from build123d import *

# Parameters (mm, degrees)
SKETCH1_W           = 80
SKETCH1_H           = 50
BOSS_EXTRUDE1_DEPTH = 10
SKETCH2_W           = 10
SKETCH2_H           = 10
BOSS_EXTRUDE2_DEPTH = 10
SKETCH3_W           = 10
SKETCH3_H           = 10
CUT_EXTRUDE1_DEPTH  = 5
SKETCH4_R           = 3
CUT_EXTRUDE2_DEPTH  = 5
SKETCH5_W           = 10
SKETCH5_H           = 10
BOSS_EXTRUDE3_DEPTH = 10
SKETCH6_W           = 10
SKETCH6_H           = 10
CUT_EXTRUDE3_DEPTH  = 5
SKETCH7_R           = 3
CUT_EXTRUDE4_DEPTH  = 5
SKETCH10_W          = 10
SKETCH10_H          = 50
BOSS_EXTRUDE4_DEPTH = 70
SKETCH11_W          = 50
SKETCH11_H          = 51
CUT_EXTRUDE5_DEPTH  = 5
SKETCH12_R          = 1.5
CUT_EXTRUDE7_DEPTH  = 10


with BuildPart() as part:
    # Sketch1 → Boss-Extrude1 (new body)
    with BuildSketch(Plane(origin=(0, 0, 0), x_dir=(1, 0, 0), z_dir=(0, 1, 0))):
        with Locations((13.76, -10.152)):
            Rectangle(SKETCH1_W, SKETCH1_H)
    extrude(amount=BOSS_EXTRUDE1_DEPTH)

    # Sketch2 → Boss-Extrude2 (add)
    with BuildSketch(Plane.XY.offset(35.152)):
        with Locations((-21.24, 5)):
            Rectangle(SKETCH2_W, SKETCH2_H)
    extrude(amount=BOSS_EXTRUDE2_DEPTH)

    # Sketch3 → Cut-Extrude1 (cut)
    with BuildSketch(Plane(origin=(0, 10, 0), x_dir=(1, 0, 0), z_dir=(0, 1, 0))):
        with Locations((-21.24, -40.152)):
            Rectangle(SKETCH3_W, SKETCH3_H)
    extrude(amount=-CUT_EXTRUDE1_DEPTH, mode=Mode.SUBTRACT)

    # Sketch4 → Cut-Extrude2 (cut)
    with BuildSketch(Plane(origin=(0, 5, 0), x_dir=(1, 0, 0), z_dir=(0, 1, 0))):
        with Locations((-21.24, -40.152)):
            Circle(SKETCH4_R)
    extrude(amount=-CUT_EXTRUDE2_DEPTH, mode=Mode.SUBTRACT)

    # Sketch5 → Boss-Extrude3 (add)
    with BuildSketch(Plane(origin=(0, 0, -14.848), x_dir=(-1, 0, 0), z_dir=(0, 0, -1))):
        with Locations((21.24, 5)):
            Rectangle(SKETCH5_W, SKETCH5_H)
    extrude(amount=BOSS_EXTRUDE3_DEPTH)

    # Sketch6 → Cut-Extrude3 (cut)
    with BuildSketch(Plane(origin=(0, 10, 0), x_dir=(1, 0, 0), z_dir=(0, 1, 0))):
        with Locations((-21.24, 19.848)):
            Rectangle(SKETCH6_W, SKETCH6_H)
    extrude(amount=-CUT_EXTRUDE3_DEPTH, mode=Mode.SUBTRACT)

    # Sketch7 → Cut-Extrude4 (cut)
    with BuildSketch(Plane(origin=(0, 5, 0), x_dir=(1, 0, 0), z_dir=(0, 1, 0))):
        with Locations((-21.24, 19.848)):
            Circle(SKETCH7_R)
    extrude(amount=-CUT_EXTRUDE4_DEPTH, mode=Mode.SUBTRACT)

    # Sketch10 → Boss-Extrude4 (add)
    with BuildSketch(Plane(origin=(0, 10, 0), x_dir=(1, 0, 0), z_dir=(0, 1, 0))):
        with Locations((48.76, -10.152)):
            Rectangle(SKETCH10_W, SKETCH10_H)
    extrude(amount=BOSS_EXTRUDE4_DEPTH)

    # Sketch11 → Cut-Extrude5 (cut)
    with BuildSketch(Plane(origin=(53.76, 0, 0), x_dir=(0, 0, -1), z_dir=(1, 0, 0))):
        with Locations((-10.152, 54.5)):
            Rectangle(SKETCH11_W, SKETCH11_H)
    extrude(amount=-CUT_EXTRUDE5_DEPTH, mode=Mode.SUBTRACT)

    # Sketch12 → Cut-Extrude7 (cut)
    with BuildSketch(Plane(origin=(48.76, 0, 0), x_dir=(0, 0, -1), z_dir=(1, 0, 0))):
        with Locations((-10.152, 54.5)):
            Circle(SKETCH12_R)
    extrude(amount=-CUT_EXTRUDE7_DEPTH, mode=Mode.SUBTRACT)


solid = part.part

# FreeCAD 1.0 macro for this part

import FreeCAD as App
import Part
import Sketcher

V = App.Vector

doc = App.newDocument("Part")
body = doc.addObject("PartDesign::Body", "Body")

# Sketch on XZ plane
sketch1 = body.newObject("Sketcher::SketchObject", "Sketch")
sketch1.AttachmentSupport = (doc.getObject("XZ_Plane"), [""])
sketch1.MapMode = "FlatFace"
sketch1.addGeometry(Part.LineSegment(V(-26, -15, 0), V(-26, 35, 0)), False)
sketch1.addGeometry(Part.LineSegment(V(-26, 35, 0), V(54, 35, 0)), False)
sketch1.addGeometry(Part.LineSegment(V(54, 35, 0), V(54, -15, 0)), False)
sketch1.addGeometry(Part.LineSegment(V(54, -15, 0), V(-26, -15, 0)), False)
sketch1.addConstraint(Sketcher.Constraint("Coincident", 0, 2, 1, 1))
sketch1.addConstraint(Sketcher.Constraint("Coincident", 1, 2, 2, 1))
sketch1.addConstraint(Sketcher.Constraint("Coincident", 2, 2, 3, 1))
sketch1.addConstraint(Sketcher.Constraint("Coincident", 3, 2, 0, 1))
sketch1.addConstraint(Sketcher.Constraint("Vertical", 0))
sketch1.addConstraint(Sketcher.Constraint("Horizontal", 1))
sketch1.addConstraint(Sketcher.Constraint("Vertical", 2))
sketch1.addConstraint(Sketcher.Constraint("Horizontal", 3))
sketch1.addConstraint(Sketcher.Constraint("DistanceX", 1, 1, 1, 2, 80.0))
sketch1.addConstraint(Sketcher.Constraint("DistanceY", 0, 1, 0, 2, 50.0))
sketch1.addConstraint(Sketcher.Constraint("DistanceX", 0, 2, -1, 1, 26.24))
sketch1.addConstraint(Sketcher.Constraint("DistanceY", -1, 1, 0, 2, 35.152))
pad1 = body.newObject("PartDesign::Pad", "Pad")
pad1.Profile = sketch1
pad1.Length = 10
pad1.Reversed = True

# Sketch on XY plane
sketch2 = body.newObject("Sketcher::SketchObject", "Sketch001")
sketch2.AttachmentSupport = (doc.getObject("XY_Plane"), [""])
sketch2.MapMode = "FlatFace"
sketch2.AttachmentOffset = App.Placement(V(0, 0, 35.152), App.Rotation())
sketch2.addGeometry(Part.LineSegment(V(-26, 10, 0), V(-26, 0, 0)), False)
sketch2.addGeometry(Part.LineSegment(V(-26, 0, 0), V(-16, 0, 0)), False)
sketch2.addGeometry(Part.LineSegment(V(-16, 0, 0), V(-16, 10, 0)), False)
sketch2.addGeometry(Part.LineSegment(V(-16, 10, 0), V(-26, 10, 0)), False)
sketch2.addConstraint(Sketcher.Constraint("Coincident", 0, 2, 1, 1))
sketch2.addConstraint(Sketcher.Constraint("Coincident", 1, 2, 2, 1))
sketch2.addConstraint(Sketcher.Constraint("Coincident", 2, 2, 3, 1))
sketch2.addConstraint(Sketcher.Constraint("Coincident", 3, 2, 0, 1))
sketch2.addConstraint(Sketcher.Constraint("Vertical", 0))
sketch2.addConstraint(Sketcher.Constraint("Horizontal", 1))
sketch2.addConstraint(Sketcher.Constraint("Vertical", 2))
sketch2.addConstraint(Sketcher.Constraint("Horizontal", 3))
sketch2.addConstraint(Sketcher.Constraint("PointOnObject", 0, 2, -1))
sketch2.addConstraint(Sketcher.Constraint("Equal", 3, 0))
sketch2.addConstraint(Sketcher.Constraint("DistanceX", 1, 1, 1, 2, 10.0))
sketch2.addConstraint(Sketcher.Constraint("DistanceX", 0, 2, -1, 1, 26.24))
pad2 = body.newObject("PartDesign::Pad", "Pad001")
pad2.Profile = sketch2
pad2.Length = 10

# Sketch on XZ plane
sketch3 = body.newObject("Sketcher::SketchObject", "Sketch002")
sketch3.AttachmentSupport = (doc.getObject("XZ_Plane"), [""])
sketch3.MapMode = "FlatFace"
sketch3.AttachmentOffset = App.Placement(V(0, 0, -10), App.Rotation())
sketch3.addGeometry(Part.LineSegment(V(-26, 35, 0), V(-26, 45, 0)), False)
sketch3.addGeometry(Part.LineSegment(V(-26, 45, 0), V(-16, 45, 0)), False)
sketch3.addGeometry(Part.LineSegment(V(-16, 45, 0), V(-16, 35, 0)), False)
sketch3.addGeometry(Part.LineSegment(V(-16, 35, 0), V(-26, 35, 0)), False)
sketch3.addConstraint(Sketcher.Constraint("Coincident", 0, 2, 1, 1))
sketch3.addConstraint(Sketcher.Constraint("Coincident", 1, 2, 2, 1))
sketch3.addConstraint(Sketcher.Constraint("Coincident", 2, 2, 3, 1))
sketch3.addConstraint(Sketcher.Constraint("Coincident", 3, 2, 0, 1))
sketch3.addConstraint(Sketcher.Constraint("Vertical", 0))
sketch3.addConstraint(Sketcher.Constraint("Horizontal", 1))
sketch3.addConstraint(Sketcher.Constraint("Vertical", 2))
sketch3.addConstraint(Sketcher.Constraint("Horizontal", 3))
sketch3.addConstraint(Sketcher.Constraint("Equal", 3, 0))
sketch3.addConstraint(Sketcher.Constraint("DistanceX", 1, 1, 1, 2, 10.0))
sketch3.addConstraint(Sketcher.Constraint("DistanceX", 0, 2, -1, 1, 26.24))
sketch3.addConstraint(Sketcher.Constraint("DistanceY", -1, 1, 0, 2, 45.152))
pocket1 = body.newObject("PartDesign::Pocket", "Pocket")
pocket1.Profile = sketch3
pocket1.Length = 5
pocket1.Reversed = True

# Sketch on XZ plane
sketch4 = body.newObject("Sketcher::SketchObject", "Sketch003")
sketch4.AttachmentSupport = (doc.getObject("XZ_Plane"), [""])
sketch4.MapMode = "FlatFace"
sketch4.AttachmentOffset = App.Placement(V(0, 0, -5), App.Rotation())
sketch4.addGeometry(Part.Circle(V(-21.2, 40.2, 0), V(0, 0, 1), 3), False)
sketch4.addConstraint(Sketcher.Constraint("Diameter", 0, 6.0))
sketch4.addConstraint(Sketcher.Constraint("DistanceX", 0, 3, -1, 1, 21.24))
sketch4.addConstraint(Sketcher.Constraint("DistanceY", -1, 1, 0, 3, 40.152))
pocket2 = body.newObject("PartDesign::Pocket", "Pocket001")
pocket2.Profile = sketch4
pocket2.Length = 5
pocket2.Reversed = True

# Sketch on XY plane
sketch5 = body.newObject("Sketcher::SketchObject", "Sketch004")
sketch5.AttachmentSupport = (doc.getObject("XY_Plane"), [""])
sketch5.MapMode = "FlatFace"
sketch5.AttachmentOffset = App.Placement(V(0, 0, -14.848), App.Rotation())
sketch5.addGeometry(Part.LineSegment(V(-16, 10, 0), V(-16, 0, 0)), False)
sketch5.addGeometry(Part.LineSegment(V(-16, 0, 0), V(-26, 0, 0)), False)
sketch5.addGeometry(Part.LineSegment(V(-26, 0, 0), V(-26, 10, 0)), False)
sketch5.addGeometry(Part.LineSegment(V(-26, 10, 0), V(-16, 10, 0)), False)
sketch5.addConstraint(Sketcher.Constraint("Coincident", 0, 2, 1, 1))
sketch5.addConstraint(Sketcher.Constraint("Coincident", 1, 2, 2, 1))
sketch5.addConstraint(Sketcher.Constraint("Coincident", 2, 2, 3, 1))
sketch5.addConstraint(Sketcher.Constraint("Coincident", 3, 2, 0, 1))
sketch5.addConstraint(Sketcher.Constraint("Vertical", 0))
sketch5.addConstraint(Sketcher.Constraint("Horizontal", 1))
sketch5.addConstraint(Sketcher.Constraint("Vertical", 2))
sketch5.addConstraint(Sketcher.Constraint("Horizontal", 3))
sketch5.addConstraint(Sketcher.Constraint("PointOnObject", 0, 2, -1))
sketch5.addConstraint(Sketcher.Constraint("Equal", 3, 0))
sketch5.addConstraint(Sketcher.Constraint("DistanceX", 1, 2, 1, 1, 10.0))
sketch5.addConstraint(Sketcher.Constraint("DistanceX", 0, 2, -1, 1, 16.24))
pad3 = body.newObject("PartDesign::Pad", "Pad002")
pad3.Profile = sketch5
pad3.Length = 10
pad3.Reversed = True

# Sketch on XZ plane
sketch6 = body.newObject("Sketcher::SketchObject", "Sketch005")
sketch6.AttachmentSupport = (doc.getObject("XZ_Plane"), [""])
sketch6.MapMode = "FlatFace"
sketch6.AttachmentOffset = App.Placement(V(0, 0, -10), App.Rotation())
sketch6.addGeometry(Part.LineSegment(V(-26, -25, 0), V(-26, -15, 0)), False)
sketch6.addGeometry(Part.LineSegment(V(-26, -15, 0), V(-16, -15, 0)), False)
sketch6.addGeometry(Part.LineSegment(V(-16, -15, 0), V(-16, -25, 0)), False)
sketch6.addGeometry(Part.LineSegment(V(-16, -25, 0), V(-26, -25, 0)), False)
sketch6.addConstraint(Sketcher.Constraint("Coincident", 0, 2, 1, 1))
sketch6.addConstraint(Sketcher.Constraint("Coincident", 1, 2, 2, 1))
sketch6.addConstraint(Sketcher.Constraint("Coincident", 2, 2, 3, 1))
sketch6.addConstraint(Sketcher.Constraint("Coincident", 3, 2, 0, 1))
sketch6.addConstraint(Sketcher.Constraint("Vertical", 0))
sketch6.addConstraint(Sketcher.Constraint("Horizontal", 1))
sketch6.addConstraint(Sketcher.Constraint("Vertical", 2))
sketch6.addConstraint(Sketcher.Constraint("Horizontal", 3))
sketch6.addConstraint(Sketcher.Constraint("Equal", 3, 0))
sketch6.addConstraint(Sketcher.Constraint("DistanceX", 1, 1, 1, 2, 10.0))
sketch6.addConstraint(Sketcher.Constraint("DistanceX", 0, 2, -1, 1, 26.24))
sketch6.addConstraint(Sketcher.Constraint("DistanceY", 0, 2, -1, 1, 14.848))
pocket3 = body.newObject("PartDesign::Pocket", "Pocket002")
pocket3.Profile = sketch6
pocket3.Length = 5
pocket3.Reversed = True

# Sketch on XZ plane
sketch7 = body.newObject("Sketcher::SketchObject", "Sketch006")
sketch7.AttachmentSupport = (doc.getObject("XZ_Plane"), [""])
sketch7.MapMode = "FlatFace"
sketch7.AttachmentOffset = App.Placement(V(0, 0, -5), App.Rotation())
sketch7.addGeometry(Part.Circle(V(-21.2, -19.8, 0), V(0, 0, 1), 3), False)
sketch7.addConstraint(Sketcher.Constraint("Diameter", 0, 6.0))
sketch7.addConstraint(Sketcher.Constraint("DistanceX", 0, 3, -1, 1, 21.24))
sketch7.addConstraint(Sketcher.Constraint("DistanceY", 0, 3, -1, 1, 19.848))
pocket4 = body.newObject("PartDesign::Pocket", "Pocket003")
pocket4.Profile = sketch7
pocket4.Length = 5
pocket4.Reversed = True

# Sketch on XZ plane
sketch8 = body.newObject("Sketcher::SketchObject", "Sketch007")
sketch8.AttachmentSupport = (doc.getObject("XZ_Plane"), [""])
sketch8.MapMode = "FlatFace"
sketch8.AttachmentOffset = App.Placement(V(0, 0, -10), App.Rotation())
sketch8.addGeometry(Part.LineSegment(V(44, -15, 0), V(44, 35, 0)), False)
sketch8.addGeometry(Part.LineSegment(V(44, 35, 0), V(54, 35, 0)), False)
sketch8.addGeometry(Part.LineSegment(V(54, 35, 0), V(54, -15, 0)), False)
sketch8.addGeometry(Part.LineSegment(V(54, -15, 0), V(44, -15, 0)), False)
sketch8.addConstraint(Sketcher.Constraint("Coincident", 0, 2, 1, 1))
sketch8.addConstraint(Sketcher.Constraint("Coincident", 1, 2, 2, 1))
sketch8.addConstraint(Sketcher.Constraint("Coincident", 2, 2, 3, 1))
sketch8.addConstraint(Sketcher.Constraint("Coincident", 3, 2, 0, 1))
sketch8.addConstraint(Sketcher.Constraint("Vertical", 0))
sketch8.addConstraint(Sketcher.Constraint("Horizontal", 1))
sketch8.addConstraint(Sketcher.Constraint("Vertical", 2))
sketch8.addConstraint(Sketcher.Constraint("Horizontal", 3))
sketch8.addConstraint(Sketcher.Constraint("DistanceX", 1, 1, 1, 2, 10.0))
sketch8.addConstraint(Sketcher.Constraint("DistanceY", 0, 1, 0, 2, 50.0))
sketch8.addConstraint(Sketcher.Constraint("DistanceX", -1, 1, 0, 2, 43.76))
sketch8.addConstraint(Sketcher.Constraint("DistanceY", -1, 1, 0, 2, 35.152))
pad4 = body.newObject("PartDesign::Pad", "Pad003")
pad4.Profile = sketch8
pad4.Length = 70
pad4.Reversed = True

# Sketch on YZ plane
sketch9 = body.newObject("Sketcher::SketchObject", "Sketch008")
sketch9.AttachmentSupport = (doc.getObject("YZ_Plane"), [""])
sketch9.MapMode = "FlatFace"
sketch9.AttachmentOffset = App.Placement(V(0, 0, 53.76), App.Rotation())
sketch9.addGeometry(Part.LineSegment(V(80, 35, 0), V(29, 35, 0)), False)
sketch9.addGeometry(Part.LineSegment(V(29, 35, 0), V(29, -15, 0)), False)
sketch9.addGeometry(Part.LineSegment(V(29, -15, 0), V(80, -15, 0)), False)
sketch9.addGeometry(Part.LineSegment(V(80, -15, 0), V(80, 35, 0)), False)
sketch9.addConstraint(Sketcher.Constraint("Coincident", 0, 2, 1, 1))
sketch9.addConstraint(Sketcher.Constraint("Coincident", 1, 2, 2, 1))
sketch9.addConstraint(Sketcher.Constraint("Coincident", 2, 2, 3, 1))
sketch9.addConstraint(Sketcher.Constraint("Coincident", 3, 2, 0, 1))
sketch9.addConstraint(Sketcher.Constraint("Horizontal", 0))
sketch9.addConstraint(Sketcher.Constraint("Vertical", 1))
sketch9.addConstraint(Sketcher.Constraint("Horizontal", 2))
sketch9.addConstraint(Sketcher.Constraint("Vertical", 3))
sketch9.addConstraint(Sketcher.Constraint("DistanceX", 0, 2, 0, 1, 51.0))
sketch9.addConstraint(Sketcher.Constraint("DistanceY", 1, 2, 1, 1, 50.0))
sketch9.addConstraint(Sketcher.Constraint("DistanceX", -1, 1, 0, 2, 29.0))
sketch9.addConstraint(Sketcher.Constraint("DistanceY", -1, 1, 0, 2, 35.152))
pocket5 = body.newObject("PartDesign::Pocket", "Pocket004")
pocket5.Profile = sketch9
pocket5.Length = 5

# Sketch on YZ plane
sketch10 = body.newObject("Sketcher::SketchObject", "Sketch009")
sketch10.AttachmentSupport = (doc.getObject("YZ_Plane"), [""])
sketch10.MapMode = "FlatFace"
sketch10.AttachmentOffset = App.Placement(V(0, 0, 48.76), App.Rotation())
sketch10.addGeometry(Part.Circle(V(54.5, 10.2, 0), V(0, 0, 1), 1.5), False)
sketch10.addConstraint(Sketcher.Constraint("Diameter", 0, 3.0))
sketch10.addConstraint(Sketcher.Constraint("DistanceX", -1, 1, 0, 3, 54.5))
sketch10.addConstraint(Sketcher.Constraint("DistanceY", -1, 1, 0, 3, 10.152))
pocket6 = body.newObject("PartDesign::Pocket", "Pocket005")
pocket6.Profile = sketch10
pocket6.Length = 10

doc.recompute()
